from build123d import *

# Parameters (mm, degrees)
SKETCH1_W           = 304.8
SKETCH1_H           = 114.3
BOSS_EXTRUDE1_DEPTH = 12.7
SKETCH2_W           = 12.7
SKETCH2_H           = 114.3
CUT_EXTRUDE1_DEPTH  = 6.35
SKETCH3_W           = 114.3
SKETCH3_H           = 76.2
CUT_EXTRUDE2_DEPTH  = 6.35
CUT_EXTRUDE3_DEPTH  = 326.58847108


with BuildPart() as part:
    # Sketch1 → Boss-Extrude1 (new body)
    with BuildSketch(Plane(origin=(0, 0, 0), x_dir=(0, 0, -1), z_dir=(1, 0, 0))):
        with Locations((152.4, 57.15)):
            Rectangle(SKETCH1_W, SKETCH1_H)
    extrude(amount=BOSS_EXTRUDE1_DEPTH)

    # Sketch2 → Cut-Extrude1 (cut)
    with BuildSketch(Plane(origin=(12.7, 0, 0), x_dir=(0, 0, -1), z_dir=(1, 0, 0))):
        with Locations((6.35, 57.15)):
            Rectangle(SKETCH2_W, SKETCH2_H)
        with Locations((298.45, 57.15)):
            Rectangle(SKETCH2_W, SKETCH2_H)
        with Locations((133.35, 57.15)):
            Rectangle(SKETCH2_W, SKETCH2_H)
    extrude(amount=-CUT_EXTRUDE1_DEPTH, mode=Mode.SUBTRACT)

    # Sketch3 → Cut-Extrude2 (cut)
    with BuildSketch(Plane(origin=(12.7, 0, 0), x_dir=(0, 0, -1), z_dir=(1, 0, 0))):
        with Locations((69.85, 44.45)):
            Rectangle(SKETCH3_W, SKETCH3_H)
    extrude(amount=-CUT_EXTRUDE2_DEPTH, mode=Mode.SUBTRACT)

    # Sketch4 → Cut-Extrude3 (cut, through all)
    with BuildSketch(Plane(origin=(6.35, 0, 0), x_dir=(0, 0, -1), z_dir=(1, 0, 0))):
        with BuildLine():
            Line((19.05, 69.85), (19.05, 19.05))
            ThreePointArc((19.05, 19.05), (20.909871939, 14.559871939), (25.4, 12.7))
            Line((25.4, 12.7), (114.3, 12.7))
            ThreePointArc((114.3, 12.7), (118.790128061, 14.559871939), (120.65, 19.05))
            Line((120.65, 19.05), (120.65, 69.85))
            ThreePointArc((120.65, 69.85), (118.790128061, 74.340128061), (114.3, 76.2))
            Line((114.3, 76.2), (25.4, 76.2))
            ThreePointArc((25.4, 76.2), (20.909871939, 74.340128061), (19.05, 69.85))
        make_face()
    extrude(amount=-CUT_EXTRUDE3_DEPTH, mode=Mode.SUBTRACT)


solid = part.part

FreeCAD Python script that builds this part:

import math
import FreeCAD as App
import Part
import Sketcher
from FreeCAD import Vector
Q = App.Units.Quantity

doc = App.newDocument("Part")
body = doc.addObject("PartDesign::Body", "Body")

sketch1 = doc.addObject("Sketcher::SketchObject", "Sketch")
body.addObject(sketch1)
sketch1.AttachmentSupport = (doc.YZ_Plane, [""])
sketch1.MapMode = "FlatFace"
sketch1.addGeometry([
    Part.LineSegment(Vector(114, 0, 0), Vector(0, 0, 0)),
    Part.LineSegment(Vector(0, 0, 0), Vector(0, -305, 0)),
    Part.LineSegment(Vector(0, -305, 0), Vector(114, -305, 0)),
    Part.LineSegment(Vector(114, -305, 0), Vector(114, 0, 0)),
], False)
sketch1.addConstraint([
    Sketcher.Constraint("Coincident", 0, 2, 1, 1),
    Sketcher.Constraint("Coincident", 1, 2, 2, 1),
    Sketcher.Constraint("Coincident", 2, 2, 3, 1),
    Sketcher.Constraint("Coincident", 3, 2, 0, 1),
    Sketcher.Constraint("Horizontal", 0),
    Sketcher.Constraint("Vertical", 1),
    Sketcher.Constraint("Horizontal", 2),
    Sketcher.Constraint("Vertical", 3),
    Sketcher.Constraint("Coincident", 0, 2, -1, 1),
    Sketcher.Constraint("DistanceY", 1, 2, 1, 1, Q("12 in")),
    Sketcher.Constraint("DistanceX", 0, 2, 0, 1, Q("4.5 in")),
])
pad1 = doc.addObject("PartDesign::Pad", "Pad")
body.addObject(pad1)
pad1.Profile = sketch1
pad1.Length = Q("0.5 in")

sketch2 = doc.addObject("Sketcher::SketchObject", "Sketch001")
body.addObject(sketch2)
sketch2.AttachmentSupport = (doc.YZ_Plane, [""])
sketch2.MapMode = "FlatFace"
sketch2.AttachmentOffset = App.Placement(Vector(0, 0, 0.5 * 25.4), App.Rotation())
sketch2.addGeometry([
    Part.LineSegment(Vector(114, 0, 0), Vector(0, 0, 0)),
    Part.LineSegment(Vector(0, 0, 0), Vector(0, -13, 0)),
    Part.LineSegment(Vector(0, -13, 0), Vector(114, -13, 0)),
    Part.LineSegment(Vector(114, -13, 0), Vector(114, 0, 0)),
    Part.LineSegment(Vector(114, -292, 0), Vector(0, -292, 0)),
    Part.LineSegment(Vector(0, -292, 0), Vector(0, -305, 0)),
    Part.LineSegment(Vector(0, -305, 0), Vector(114, -305, 0)),
    Part.LineSegment(Vector(114, -305, 0), Vector(114, -292, 0)),
    Part.LineSegment(Vector(114, -127, 0), Vector(0, -127, 0)),
    Part.LineSegment(Vector(0, -127, 0), Vector(0, -140, 0)),
    Part.LineSegment(Vector(0, -140, 0), Vector(114, -140, 0)),
    Part.LineSegment(Vector(114, -140, 0), Vector(114, -127, 0)),
], False)
sketch2.addConstraint([
    Sketcher.Constraint("Coincident", 0, 2, 1, 1),
    Sketcher.Constraint("Coincident", 1, 2, 2, 1),
    Sketcher.Constraint("Coincident", 2, 2, 3, 1),
    Sketcher.Constraint("Coincident", 3, 2, 0, 1),
    Sketcher.Constraint("Coincident", 4, 2, 5, 1),
    Sketcher.Constraint("Coincident", 5, 2, 6, 1),
    Sketcher.Constraint("Coincident", 6, 2, 7, 1),
    Sketcher.Constraint("Coincident", 7, 2, 4, 1),
    Sketcher.Constraint("Coincident", 8, 2, 9, 1),
    Sketcher.Constraint("Coincident", 9, 2, 10, 1),
    Sketcher.Constraint("Coincident", 10, 2, 11, 1),
    Sketcher.Constraint("Coincident", 11, 2, 8, 1),
    Sketcher.Constraint("Horizontal", 0),
    Sketcher.Constraint("Vertical", 1),
    Sketcher.Constraint("Horizontal", 2),
    Sketcher.Constraint("Vertical", 3),
    Sketcher.Constraint("Horizontal", 4),
    Sketcher.Constraint("Vertical", 5),
    Sketcher.Constraint("Horizontal", 6),
    Sketcher.Constraint("Vertical", 7),
    Sketcher.Constraint("Horizontal", 8),
    Sketcher.Constraint("Vertical", 9),
    Sketcher.Constraint("Horizontal", 10),
    Sketcher.Constraint("Vertical", 11),
    Sketcher.Constraint("Coincident", 0, 2, -1, 1),
    Sketcher.Constraint("PointOnObject", 4, 2, -2),
    Sketcher.Constraint("PointOnObject", 8, 2, -2),
    Sketcher.Constraint("Vertical", 3, 2, 6, 2),
    Sketcher.Constraint("Vertical", 7, 2, 10, 2),
    Sketcher.Constraint("Equal", 3, 5),
    Sketcher.Constraint("Equal", 7, 9),
    Sketcher.Constraint("DistanceX", 0, 2, 0, 1, Q("4.5 in")),
    Sketcher.Constraint("DistanceY", 1, 2, 1, 1, Q("0.5 in")),
    Sketcher.Constraint("DistanceY", 5, 2, -1, 1, Q("12 in")),
    Sketcher.Constraint("DistanceY", 8, 2, -1, 1, Q("5 in")),
])
pocket1 = doc.addObject("PartDesign::Pocket", "Pocket")
body.addObject(pocket1)
pocket1.Profile = sketch2
pocket1.Length = Q("0.25 in")

sketch3 = doc.addObject("Sketcher::SketchObject", "Sketch002")
body.addObject(sketch3)
sketch3.AttachmentSupport = (doc.YZ_Plane, [""])
sketch3.MapMode = "FlatFace"
sketch3.AttachmentOffset = App.Placement(Vector(0, 0, 0.5 * 25.4), App.Rotation())
sketch3.addGeometry([
    Part.LineSegment(Vector(83, -13, 0), Vector(6, -13, 0)),
    Part.LineSegment(Vector(6, -13, 0), Vector(6, -127, 0)),
    Part.LineSegment(Vector(6, -127, 0), Vector(83, -127, 0)),
    Part.LineSegment(Vector(83, -127, 0), Vector(83, -13, 0)),
], False)
sketch3.addConstraint([
    Sketcher.Constraint("Coincident", 0, 2, 1, 1),
    Sketcher.Constraint("Coincident", 1, 2, 2, 1),
    Sketcher.Constraint("Coincident", 2, 2, 3, 1),
    Sketcher.Constraint("Coincident", 3, 2, 0, 1),
    Sketcher.Constraint("Horizontal", 0),
    Sketcher.Constraint("Vertical", 1),
    Sketcher.Constraint("Horizontal", 2),
    Sketcher.Constraint("Vertical", 3),
    Sketcher.Constraint("DistanceX", 0, 2, 0, 1, Q("3 in")),
    Sketcher.Constraint("DistanceY", 1, 2, 1, 1, Q("4.5 in")),
    Sketcher.Constraint("DistanceY", 1, 2, -1, 1, Q("5 in")),
    Sketcher.Constraint("DistanceX", -1, 1, 0, 2, Q("0.25 in")),
])
pocket2 = doc.addObject("PartDesign::Pocket", "Pocket001")
body.addObject(pocket2)
pocket2.Profile = sketch3
pocket2.Length = Q("0.25 in")

sketch4 = doc.addObject("Sketcher::SketchObject", "Sketch003")
body.addObject(sketch4)
sketch4.AttachmentSupport = (doc.YZ_Plane, [""])
sketch4.MapMode = "FlatFace"
sketch4.AttachmentOffset = App.Placement(Vector(0, 0, 0.25 * 25.4), App.Rotation())
sketch4.addGeometry([
    Part.LineSegment(Vector(70, -19, 0), Vector(19, -19, 0)),
    Part.ArcOfCircle(Part.Circle(Vector(19, -25, 0), Vector(0, 0, 1), 6), math.radians(90), math.radians(180)),
    Part.LineSegment(Vector(13, -25, 0), Vector(13, -114, 0)),
    Part.ArcOfCircle(Part.Circle(Vector(19, -114, 0), Vector(0, 0, 1), 6), math.radians(180), math.radians(270)),
    Part.LineSegment(Vector(19, -121, 0), Vector(70, -121, 0)),
    Part.ArcOfCircle(Part.Circle(Vector(70, -114, 0), Vector(0, 0, 1), 6), math.radians(-90), math.radians(0)),
    Part.LineSegment(Vector(76, -114, 0), Vector(76, -25, 0)),
    Part.ArcOfCircle(Part.Circle(Vector(70, -25, 0), Vector(0, 0, 1), 6), math.radians(0), math.radians(90)),
], False)
sketch4.addConstraint([
    Sketcher.Constraint("Tangent", 0, 2, 1, 1),
    Sketcher.Constraint("Tangent", 1, 2, 2, 1),
    Sketcher.Constraint("Tangent", 2, 2, 3, 1),
    Sketcher.Constraint("Tangent", 3, 2, 4, 1),
    Sketcher.Constraint("Tangent", 4, 2, 5, 1),
    Sketcher.Constraint("Tangent", 5, 2, 6, 1),
    Sketcher.Constraint("Tangent", 6, 2, 7, 1),
    Sketcher.Constraint("Tangent", 7, 2, 0, 1),
    Sketcher.Constraint("Horizontal", 0),
    Sketcher.Constraint("Vertical", 2),
    Sketcher.Constraint("Horizontal", 4),
    Sketcher.Constraint("Vertical", 6),
    Sketcher.Constraint("Equal", 1, 3),
    Sketcher.Constraint("Equal", 3, 5),
    Sketcher.Constraint("Equal", 5, 7),
    Sketcher.Constraint("DistanceX", 0, 2, 0, 1, Q("2 in")),
    Sketcher.Constraint("Radius", 1, Q("0.25 in")),
    Sketcher.Constraint("DistanceY", 2, 2, 2, 1, Q("3.5 in")),
    Sketcher.Constraint("DistanceY", 1, 3, -1, 1, Q("1 in")),
    Sketcher.Constraint("DistanceX", -1, 1, 5, 2, Q("3 in")),
])
pocket3 = doc.addObject("PartDesign::Pocket", "Pocket002")
body.addObject(pocket3)
pocket3.Profile = sketch4
pocket3.Type = "ThroughAll"

doc.recompute()
